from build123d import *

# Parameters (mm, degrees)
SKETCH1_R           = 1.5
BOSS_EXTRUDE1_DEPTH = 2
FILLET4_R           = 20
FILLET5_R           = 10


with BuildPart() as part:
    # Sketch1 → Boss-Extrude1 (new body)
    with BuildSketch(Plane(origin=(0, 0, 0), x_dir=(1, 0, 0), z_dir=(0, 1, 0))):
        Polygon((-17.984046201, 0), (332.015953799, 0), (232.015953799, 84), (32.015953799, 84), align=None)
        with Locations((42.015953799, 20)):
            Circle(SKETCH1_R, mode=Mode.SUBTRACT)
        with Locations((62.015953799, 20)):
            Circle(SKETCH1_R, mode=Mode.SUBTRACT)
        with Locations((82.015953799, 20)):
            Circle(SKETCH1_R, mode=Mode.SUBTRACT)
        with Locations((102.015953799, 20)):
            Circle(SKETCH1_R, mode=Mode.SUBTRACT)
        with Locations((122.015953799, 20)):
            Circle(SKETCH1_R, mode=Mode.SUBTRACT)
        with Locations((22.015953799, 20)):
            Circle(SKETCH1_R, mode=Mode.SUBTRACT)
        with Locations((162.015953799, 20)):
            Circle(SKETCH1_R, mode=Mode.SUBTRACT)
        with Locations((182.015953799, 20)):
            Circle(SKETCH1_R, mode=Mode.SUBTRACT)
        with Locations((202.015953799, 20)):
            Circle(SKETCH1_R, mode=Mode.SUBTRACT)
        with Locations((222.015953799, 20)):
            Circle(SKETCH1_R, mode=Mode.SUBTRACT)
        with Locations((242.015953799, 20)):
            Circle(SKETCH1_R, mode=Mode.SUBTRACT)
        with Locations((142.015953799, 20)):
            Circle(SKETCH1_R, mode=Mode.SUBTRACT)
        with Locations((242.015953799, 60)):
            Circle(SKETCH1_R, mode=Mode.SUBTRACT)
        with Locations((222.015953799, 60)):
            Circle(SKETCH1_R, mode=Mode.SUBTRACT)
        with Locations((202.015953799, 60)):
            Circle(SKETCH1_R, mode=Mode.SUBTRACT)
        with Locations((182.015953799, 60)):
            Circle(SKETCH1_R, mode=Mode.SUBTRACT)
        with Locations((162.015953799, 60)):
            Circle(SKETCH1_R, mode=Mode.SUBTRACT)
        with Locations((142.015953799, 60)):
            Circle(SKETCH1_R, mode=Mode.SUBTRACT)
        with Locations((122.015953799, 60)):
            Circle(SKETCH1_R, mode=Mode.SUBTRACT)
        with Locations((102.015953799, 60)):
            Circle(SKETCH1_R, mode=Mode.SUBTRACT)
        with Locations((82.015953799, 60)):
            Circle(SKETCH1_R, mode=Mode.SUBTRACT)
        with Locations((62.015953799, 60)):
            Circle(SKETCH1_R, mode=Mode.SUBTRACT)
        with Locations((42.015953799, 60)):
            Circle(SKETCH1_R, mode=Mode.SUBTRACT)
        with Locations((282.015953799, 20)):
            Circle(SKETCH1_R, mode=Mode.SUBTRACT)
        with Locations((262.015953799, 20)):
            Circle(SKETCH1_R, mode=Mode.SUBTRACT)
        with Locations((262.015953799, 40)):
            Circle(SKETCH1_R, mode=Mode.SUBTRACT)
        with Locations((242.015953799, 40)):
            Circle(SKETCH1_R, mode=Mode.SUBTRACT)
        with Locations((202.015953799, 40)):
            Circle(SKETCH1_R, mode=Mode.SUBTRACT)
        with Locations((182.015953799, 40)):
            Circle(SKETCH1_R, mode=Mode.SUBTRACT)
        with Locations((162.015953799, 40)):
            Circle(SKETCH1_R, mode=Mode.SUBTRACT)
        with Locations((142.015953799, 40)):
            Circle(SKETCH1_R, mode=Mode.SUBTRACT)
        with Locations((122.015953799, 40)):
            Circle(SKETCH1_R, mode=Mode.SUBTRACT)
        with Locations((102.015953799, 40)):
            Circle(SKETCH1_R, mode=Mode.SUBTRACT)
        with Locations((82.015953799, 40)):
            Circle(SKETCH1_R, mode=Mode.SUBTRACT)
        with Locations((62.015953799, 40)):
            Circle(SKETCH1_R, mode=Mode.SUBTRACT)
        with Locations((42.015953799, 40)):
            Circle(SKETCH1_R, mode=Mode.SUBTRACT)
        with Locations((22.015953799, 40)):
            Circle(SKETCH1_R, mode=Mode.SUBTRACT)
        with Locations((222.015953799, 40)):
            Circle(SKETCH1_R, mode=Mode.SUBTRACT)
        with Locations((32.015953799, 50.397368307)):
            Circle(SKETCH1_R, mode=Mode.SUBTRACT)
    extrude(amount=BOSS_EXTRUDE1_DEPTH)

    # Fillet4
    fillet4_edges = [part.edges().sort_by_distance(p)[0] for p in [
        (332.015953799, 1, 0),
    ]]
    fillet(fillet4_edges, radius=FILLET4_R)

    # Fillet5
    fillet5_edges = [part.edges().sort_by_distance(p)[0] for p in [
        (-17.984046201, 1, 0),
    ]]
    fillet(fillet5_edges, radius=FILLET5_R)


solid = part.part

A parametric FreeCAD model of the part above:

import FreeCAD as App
import Part
import Sketcher

V = App.Vector
Q = App.Units.Quantity


def edges_at(feature, points):
    """Names of the edges that pass closest to the given points."""
    edges = feature.Shape.Edges
    near = lambda p: min(range(len(edges)), key=lambda i: edges[i].distToShape(Part.Vertex(*p))[0])
    return sorted({f"Edge{near(p) + 1}" for p in points})


def add_polygon(sketch, points):
    """Adds a closed chain of lines whose ends are joined by coincident constraints."""
    first, n = sketch.GeometryCount, len(points)
    for a, b in zip(points, points[1:] + points[:1]):
        sketch.addGeometry(Part.LineSegment(App.Vector(*a, 0), App.Vector(*b, 0)), False)
    for i in range(n):
        sketch.addConstraint(Sketcher.Constraint("Coincident", first + i, 2, first + (i + 1) % n, 1))

doc = App.newDocument("Part")
params = doc.addObject("Spreadsheet::Sheet", "Params")
for row, (alias, value) in enumerate([
    ("sketch1_diameter", "3 mm"),
    ("sketch1_width", "350 mm"),
    ("sketch1_width2", "200 mm"),
    ("pad1_length", "2 mm"),
    ("fillet_radius", "20 mm"),
    ("fillet2_radius", "10 mm"),
], start=1):
    params.set(f"A{row}", alias)
    params.set(f"B{row}", "=" + value)
    params.setAlias(f"B{row}", alias)

body = doc.addObject("PartDesign::Body", "Body")

# Sketch on XZ plane
sketch1 = body.newObject("Sketcher::SketchObject", "Sketch")
sketch1.AttachmentSupport = (doc.getObject("XZ_Plane"), [""])
sketch1.MapMode = "FlatFace"
add_polygon(sketch1, [(-18, 0), (332, 0), (232, -84), (32, -84)])  # lines 0-3
sketch1.addGeometry(Part.Circle(V(22, -20, 0), V(0, 0, 1), 1.5), False)  # 4
sketch1.addGeometry(Part.Circle(V(42, -20, 0), V(0, 0, 1), 1.5), False)  # 5
sketch1.addGeometry(Part.Circle(V(62, -20, 0), V(0, 0, 1), 1.5), False)  # 6
sketch1.addGeometry(Part.Circle(V(82, -20, 0), V(0, 0, 1), 1.5), False)  # 7
sketch1.addGeometry(Part.Circle(V(102, -20, 0), V(0, 0, 1), 1.5), False)  # 8
sketch1.addGeometry(Part.Circle(V(122, -20, 0), V(0, 0, 1), 1.5), False)  # 9
sketch1.addGeometry(Part.Circle(V(142, -20, 0), V(0, 0, 1), 1.5), False)  # 10
sketch1.addGeometry(Part.Circle(V(162, -20, 0), V(0, 0, 1), 1.5), False)  # 11
sketch1.addGeometry(Part.Circle(V(182, -20, 0), V(0, 0, 1), 1.5), False)  # 12
sketch1.addGeometry(Part.Circle(V(202, -20, 0), V(0, 0, 1), 1.5), False)  # 13
sketch1.addGeometry(Part.Circle(V(222, -20, 0), V(0, 0, 1), 1.5), False)  # 14
sketch1.addGeometry(Part.Circle(V(242, -20, 0), V(0, 0, 1), 1.5), False)  # 15
sketch1.addGeometry(Part.Circle(V(262, -20, 0), V(0, 0, 1), 1.5), False)  # 16
sketch1.addGeometry(Part.Circle(V(282, -20, 0), V(0, 0, 1), 1.5), False)  # 17
sketch1.addGeometry(Part.Circle(V(22, -40, 0), V(0, 0, 1), 1.5), False)  # 18
sketch1.addGeometry(Part.Circle(V(42, -40, 0), V(0, 0, 1), 1.5), False)  # 19
sketch1.addGeometry(Part.Circle(V(62, -40, 0), V(0, 0, 1), 1.5), False)  # 20
sketch1.addGeometry(Part.Circle(V(82, -40, 0), V(0, 0, 1), 1.5), False)  # 21
sketch1.addGeometry(Part.Circle(V(32, -50.4, 0), V(0, 0, 1), 1.5), False)  # 22
sketch1.addGeometry(Part.Circle(V(102, -40, 0), V(0, 0, 1), 1.5), False)  # 23
sketch1.addGeometry(Part.Circle(V(122, -40, 0), V(0, 0, 1), 1.5), False)  # 24
sketch1.addGeometry(Part.Circle(V(142, -40, 0), V(0, 0, 1), 1.5), False)  # 25
sketch1.addGeometry(Part.Circle(V(42, -60, 0), V(0, 0, 1), 1.5), False)  # 26
sketch1.addGeometry(Part.Circle(V(62, -60, 0), V(0, 0, 1), 1.5), False)  # 27
sketch1.addGeometry(Part.Circle(V(82, -60, 0), V(0, 0, 1), 1.5), False)  # 28
sketch1.addGeometry(Part.Circle(V(102, -60, 0), V(0, 0, 1), 1.5), False)  # 29
sketch1.addGeometry(Part.Circle(V(122, -60, 0), V(0, 0, 1), 1.5), False)  # 30
sketch1.addGeometry(Part.Circle(V(142, -60, 0), V(0, 0, 1), 1.5), False)  # 31
sketch1.addGeometry(Part.Circle(V(162, -40, 0), V(0, 0, 1), 1.5), False)  # 32
sketch1.addGeometry(Part.Circle(V(182, -40, 0), V(0, 0, 1), 1.5), False)  # 33
sketch1.addGeometry(Part.Circle(V(202, -40, 0), V(0, 0, 1), 1.5), False)  # 34
sketch1.addGeometry(Part.Circle(V(222, -40, 0), V(0, 0, 1), 1.5), False)  # 35
sketch1.addGeometry(Part.Circle(V(242, -40, 0), V(0, 0, 1), 1.5), False)  # 36
sketch1.addGeometry(Part.Circle(V(262, -40, 0), V(0, 0, 1), 1.5), False)  # 37
sketch1.addGeometry(Part.Circle(V(162, -60, 0), V(0, 0, 1), 1.5), False)  # 38
sketch1.addGeometry(Part.Circle(V(182, -60, 0), V(0, 0, 1), 1.5), False)  # 39
sketch1.addGeometry(Part.Circle(V(202, -60, 0), V(0, 0, 1), 1.5), False)  # 40
sketch1.addGeometry(Part.Circle(V(222, -60, 0), V(0, 0, 1), 1.5), False)  # 41
sketch1.addGeometry(Part.Circle(V(242, -60, 0), V(0, 0, 1), 1.5), False)  # 42
sketch1.addConstraint([
    Sketcher.Constraint("Horizontal", 0),
    Sketcher.Constraint("Horizontal", 2),
    Sketcher.Constraint("Equal", 4, 5),
    Sketcher.Constraint("Equal", 5, 6),
    Sketcher.Constraint("Equal", 6, 7),
    Sketcher.Constraint("Equal", 7, 8),
    Sketcher.Constraint("Equal", 8, 9),
    Sketcher.Constraint("Equal", 9, 10),
    Sketcher.Constraint("Equal", 10, 11),
    Sketcher.Constraint("Equal", 11, 12),
    Sketcher.Constraint("Equal", 12, 13),
    Sketcher.Constraint("Equal", 13, 14),
    Sketcher.Constraint("Equal", 14, 15),
    Sketcher.Constraint("Equal", 15, 16),
    Sketcher.Constraint("Equal", 16, 17),
    Sketcher.Constraint("Equal", 17, 18),
    Sketcher.Constraint("Equal", 18, 19),
    Sketcher.Constraint("Equal", 19, 20),
    Sketcher.Constraint("Equal", 20, 21),
    Sketcher.Constraint("Equal", 21, 22),
    Sketcher.Constraint("Equal", 22, 23),
    Sketcher.Constraint("Equal", 23, 24),
    Sketcher.Constraint("Equal", 24, 25),
    Sketcher.Constraint("Equal", 25, 26),
    Sketcher.Constraint("Equal", 26, 27),
    Sketcher.Constraint("Equal", 27, 28),
    Sketcher.Constraint("Equal", 28, 29),
    Sketcher.Constraint("Equal", 29, 30),
    Sketcher.Constraint("Equal", 30, 31),
    Sketcher.Constraint("Equal", 31, 32),
    Sketcher.Constraint("Equal", 32, 33),
    Sketcher.Constraint("Equal", 33, 34),
    Sketcher.Constraint("Equal", 34, 35),
    Sketcher.Constraint("Equal", 35, 36),
    Sketcher.Constraint("Equal", 36, 37),
    Sketcher.Constraint("Equal", 37, 38),
    Sketcher.Constraint("Equal", 38, 39),
    Sketcher.Constraint("Equal", 39, 40),
    Sketcher.Constraint("Equal", 40, 41),
    Sketcher.Constraint("Equal", 41, 42),
    Sketcher.Constraint("PointOnObject", 0, 2, -1),
    Sketcher.Constraint("Horizontal", 4, 3, 5, 3),
    Sketcher.Constraint("Horizontal", 5, 3, 6, 3),
    Sketcher.Constraint("Horizontal", 6, 3, 7, 3),
    Sketcher.Constraint("Horizontal", 7, 3, 8, 3),
    Sketcher.Constraint("Horizontal", 8, 3, 9, 3),
    Sketcher.Constraint("Horizontal", 9, 3, 10, 3),
    Sketcher.Constraint("Horizontal", 10, 3, 11, 3),
    Sketcher.Constraint("Horizontal", 11, 3, 12, 3),
    Sketcher.Constraint("Horizontal", 12, 3, 13, 3),
    Sketcher.Constraint("Horizontal", 13, 3, 14, 3),
    Sketcher.Constraint("Horizontal", 14, 3, 15, 3),
    Sketcher.Constraint("Horizontal", 15, 3, 16, 3),
    Sketcher.Constraint("Horizontal", 16, 3, 17, 3),
    Sketcher.Constraint("Horizontal", 18, 3, 19, 3),
    Sketcher.Constraint("Horizontal", 19, 3, 20, 3),
    Sketcher.Constraint("Horizontal", 20, 3, 21, 3),
    Sketcher.Constraint("Horizontal", 21, 3, 23, 3),
    Sketcher.Constraint("Horizontal", 23, 3, 24, 3),
    Sketcher.Constraint("Horizontal", 24, 3, 25, 3),
    Sketcher.Constraint("Horizontal", 26, 3, 27, 3),
    Sketcher.Constraint("Horizontal", 27, 3, 28, 3),
    Sketcher.Constraint("Horizontal", 28, 3, 29, 3),
    Sketcher.Constraint("Horizontal", 29, 3, 30, 3),
    Sketcher.Constraint("Horizontal", 30, 3, 31, 3),
    Sketcher.Constraint("Horizontal", 25, 3, 32, 3),
    Sketcher.Constraint("Horizontal", 32, 3, 33, 3),
    Sketcher.Constraint("Horizontal", 33, 3, 34, 3),
    Sketcher.Constraint("Horizontal", 34, 3, 35, 3),
    Sketcher.Constraint("Horizontal", 35, 3, 36, 3),
    Sketcher.Constraint("Horizontal", 36, 3, 37, 3),
    Sketcher.Constraint("Horizontal", 31, 3, 38, 3),
    Sketcher.Constraint("Horizontal", 38, 3, 39, 3),
    Sketcher.Constraint("Horizontal", 39, 3, 40, 3),
    Sketcher.Constraint("Horizontal", 40, 3, 41, 3),
    Sketcher.Constraint("Horizontal", 41, 3, 42, 3),
    Sketcher.Constraint("Vertical", 4, 3, 18, 3),
    Sketcher.Constraint("Vertical", 5, 3, 19, 3),
    Sketcher.Constraint("Vertical", 6, 3, 20, 3),
    Sketcher.Constraint("Vertical", 7, 3, 21, 3),
    Sketcher.Constraint("Vertical", 8, 3, 23, 3),
    Sketcher.Constraint("Vertical", 9, 3, 24, 3),
    Sketcher.Constraint("Vertical", 10, 3, 25, 3),
    Sketcher.Constraint("Vertical", 19, 3, 26, 3),
    Sketcher.Constraint("Vertical", 20, 3, 27, 3),
    Sketcher.Constraint("Vertical", 21, 3, 28, 3),
    Sketcher.Constraint("Vertical", 23, 3, 29, 3),
    Sketcher.Constraint("Vertical", 24, 3, 30, 3),
    Sketcher.Constraint("Vertical", 25, 3, 31, 3),
    Sketcher.Constraint("Vertical", 11, 3, 32, 3),
    Sketcher.Constraint("Vertical", 12, 3, 33, 3),
    Sketcher.Constraint("Vertical", 13, 3, 34, 3),
    Sketcher.Constraint("Vertical", 14, 3, 35, 3),
    Sketcher.Constraint("Vertical", 15, 3, 36, 3),
    Sketcher.Constraint("Vertical", 16, 3, 37, 3),
    Sketcher.Constraint("Vertical", 32, 3, 38, 3),
    Sketcher.Constraint("Vertical", 33, 3, 39, 3),
    Sketcher.Constraint("Vertical", 34, 3, 40, 3),
    Sketcher.Constraint("Vertical", 35, 3, 41, 3),
    Sketcher.Constraint("Vertical", 36, 3, 42, 3),
    Sketcher.Constraint("Vertical", 22, 3, 2, 2),
    Sketcher.Constraint("Diameter", 4, Q("3 mm")),
    Sketcher.Constraint("DistanceX", 0, 1, 0, 2, Q("350 mm")),
    Sketcher.Constraint("DistanceX", 2, 2, 2, 1, Q("200 mm")),
    Sketcher.Constraint("DistanceY", 4, 3, -1, 1, Q("20 mm")),
    Sketcher.Constraint("DistanceY", 18, 3, -1, 1, Q("40 mm")),
    Sketcher.Constraint("DistanceY", 26, 3, -1, 1, Q("60 mm")),
    Sketcher.Constraint("DistanceY", 1, 2, -1, 1, Q("84 mm")),
    Sketcher.Constraint("DistanceX", 4, 3, 5, 3, Q("20 mm")),
    Sketcher.Constraint("DistanceX", 5, 3, 6, 3, Q("20 mm")),
    Sketcher.Constraint("DistanceX", 6, 3, 7, 3, Q("20 mm")),
    Sketcher.Constraint("DistanceX", 7, 3, 8, 3, Q("20 mm")),
    Sketcher.Constraint("DistanceX", 8, 3, 9, 3, Q("20 mm")),
    Sketcher.Constraint("DistanceX", 9, 3, 10, 3, Q("20 mm")),
    Sketcher.Constraint("DistanceX", 10, 3, 11, 3, Q("20 mm")),
    Sketcher.Constraint("DistanceX", 11, 3, 12, 3, Q("20 mm")),
    Sketcher.Constraint("DistanceX", 12, 3, 13, 3, Q("20 mm")),
    Sketcher.Constraint("DistanceX", 13, 3, 14, 3, Q("20 mm")),
    Sketcher.Constraint("DistanceX", 14, 3, 15, 3, Q("20 mm")),
    Sketcher.Constraint("DistanceX", 15, 3, 16, 3, Q("20 mm")),
    Sketcher.Constraint("DistanceX", 16, 3, 17, 3, Q("20 mm")),
    Sketcher.Constraint("DistanceX", 22, 3, 19, 3, Q("10 mm")),
    Sketcher.Constraint("DistanceX", 17, 3, 0, 2, Q("50 mm")),
    Sketcher.Constraint("DistanceY", 22, 3, -1, 1, Q("50.397368 mm")),
    Sketcher.Constraint("DistanceX", -1, 1, 4, 3, Q("22.015954 mm")),
])
sketch1.setExpression("Constraints[105]", "Params.sketch1_diameter")
sketch1.setExpression("Constraints[106]", "Params.sketch1_width")
sketch1.setExpression("Constraints[107]", "Params.sketch1_width2")
pad1 = body.newObject("PartDesign::Pad", "Pad")
pad1.Profile = sketch1
pad1.setExpression("Length", "Params.pad1_length")
pad1.Reversed = True
doc.recompute()

fillet = body.newObject("PartDesign::Fillet", "Fillet")
fillet.Base = (pad1, edges_at(pad1, [(332.016, 1, 0)]))
fillet.setExpression("Radius", "Params.fillet_radius")
doc.recompute()

fillet2 = body.newObject("PartDesign::Fillet", "Fillet001")
fillet2.Base = (fillet, edges_at(fillet, [(-17.984, 1, 0)]))
fillet2.setExpression("Radius", "Params.fillet2_radius")

doc.recompute()
